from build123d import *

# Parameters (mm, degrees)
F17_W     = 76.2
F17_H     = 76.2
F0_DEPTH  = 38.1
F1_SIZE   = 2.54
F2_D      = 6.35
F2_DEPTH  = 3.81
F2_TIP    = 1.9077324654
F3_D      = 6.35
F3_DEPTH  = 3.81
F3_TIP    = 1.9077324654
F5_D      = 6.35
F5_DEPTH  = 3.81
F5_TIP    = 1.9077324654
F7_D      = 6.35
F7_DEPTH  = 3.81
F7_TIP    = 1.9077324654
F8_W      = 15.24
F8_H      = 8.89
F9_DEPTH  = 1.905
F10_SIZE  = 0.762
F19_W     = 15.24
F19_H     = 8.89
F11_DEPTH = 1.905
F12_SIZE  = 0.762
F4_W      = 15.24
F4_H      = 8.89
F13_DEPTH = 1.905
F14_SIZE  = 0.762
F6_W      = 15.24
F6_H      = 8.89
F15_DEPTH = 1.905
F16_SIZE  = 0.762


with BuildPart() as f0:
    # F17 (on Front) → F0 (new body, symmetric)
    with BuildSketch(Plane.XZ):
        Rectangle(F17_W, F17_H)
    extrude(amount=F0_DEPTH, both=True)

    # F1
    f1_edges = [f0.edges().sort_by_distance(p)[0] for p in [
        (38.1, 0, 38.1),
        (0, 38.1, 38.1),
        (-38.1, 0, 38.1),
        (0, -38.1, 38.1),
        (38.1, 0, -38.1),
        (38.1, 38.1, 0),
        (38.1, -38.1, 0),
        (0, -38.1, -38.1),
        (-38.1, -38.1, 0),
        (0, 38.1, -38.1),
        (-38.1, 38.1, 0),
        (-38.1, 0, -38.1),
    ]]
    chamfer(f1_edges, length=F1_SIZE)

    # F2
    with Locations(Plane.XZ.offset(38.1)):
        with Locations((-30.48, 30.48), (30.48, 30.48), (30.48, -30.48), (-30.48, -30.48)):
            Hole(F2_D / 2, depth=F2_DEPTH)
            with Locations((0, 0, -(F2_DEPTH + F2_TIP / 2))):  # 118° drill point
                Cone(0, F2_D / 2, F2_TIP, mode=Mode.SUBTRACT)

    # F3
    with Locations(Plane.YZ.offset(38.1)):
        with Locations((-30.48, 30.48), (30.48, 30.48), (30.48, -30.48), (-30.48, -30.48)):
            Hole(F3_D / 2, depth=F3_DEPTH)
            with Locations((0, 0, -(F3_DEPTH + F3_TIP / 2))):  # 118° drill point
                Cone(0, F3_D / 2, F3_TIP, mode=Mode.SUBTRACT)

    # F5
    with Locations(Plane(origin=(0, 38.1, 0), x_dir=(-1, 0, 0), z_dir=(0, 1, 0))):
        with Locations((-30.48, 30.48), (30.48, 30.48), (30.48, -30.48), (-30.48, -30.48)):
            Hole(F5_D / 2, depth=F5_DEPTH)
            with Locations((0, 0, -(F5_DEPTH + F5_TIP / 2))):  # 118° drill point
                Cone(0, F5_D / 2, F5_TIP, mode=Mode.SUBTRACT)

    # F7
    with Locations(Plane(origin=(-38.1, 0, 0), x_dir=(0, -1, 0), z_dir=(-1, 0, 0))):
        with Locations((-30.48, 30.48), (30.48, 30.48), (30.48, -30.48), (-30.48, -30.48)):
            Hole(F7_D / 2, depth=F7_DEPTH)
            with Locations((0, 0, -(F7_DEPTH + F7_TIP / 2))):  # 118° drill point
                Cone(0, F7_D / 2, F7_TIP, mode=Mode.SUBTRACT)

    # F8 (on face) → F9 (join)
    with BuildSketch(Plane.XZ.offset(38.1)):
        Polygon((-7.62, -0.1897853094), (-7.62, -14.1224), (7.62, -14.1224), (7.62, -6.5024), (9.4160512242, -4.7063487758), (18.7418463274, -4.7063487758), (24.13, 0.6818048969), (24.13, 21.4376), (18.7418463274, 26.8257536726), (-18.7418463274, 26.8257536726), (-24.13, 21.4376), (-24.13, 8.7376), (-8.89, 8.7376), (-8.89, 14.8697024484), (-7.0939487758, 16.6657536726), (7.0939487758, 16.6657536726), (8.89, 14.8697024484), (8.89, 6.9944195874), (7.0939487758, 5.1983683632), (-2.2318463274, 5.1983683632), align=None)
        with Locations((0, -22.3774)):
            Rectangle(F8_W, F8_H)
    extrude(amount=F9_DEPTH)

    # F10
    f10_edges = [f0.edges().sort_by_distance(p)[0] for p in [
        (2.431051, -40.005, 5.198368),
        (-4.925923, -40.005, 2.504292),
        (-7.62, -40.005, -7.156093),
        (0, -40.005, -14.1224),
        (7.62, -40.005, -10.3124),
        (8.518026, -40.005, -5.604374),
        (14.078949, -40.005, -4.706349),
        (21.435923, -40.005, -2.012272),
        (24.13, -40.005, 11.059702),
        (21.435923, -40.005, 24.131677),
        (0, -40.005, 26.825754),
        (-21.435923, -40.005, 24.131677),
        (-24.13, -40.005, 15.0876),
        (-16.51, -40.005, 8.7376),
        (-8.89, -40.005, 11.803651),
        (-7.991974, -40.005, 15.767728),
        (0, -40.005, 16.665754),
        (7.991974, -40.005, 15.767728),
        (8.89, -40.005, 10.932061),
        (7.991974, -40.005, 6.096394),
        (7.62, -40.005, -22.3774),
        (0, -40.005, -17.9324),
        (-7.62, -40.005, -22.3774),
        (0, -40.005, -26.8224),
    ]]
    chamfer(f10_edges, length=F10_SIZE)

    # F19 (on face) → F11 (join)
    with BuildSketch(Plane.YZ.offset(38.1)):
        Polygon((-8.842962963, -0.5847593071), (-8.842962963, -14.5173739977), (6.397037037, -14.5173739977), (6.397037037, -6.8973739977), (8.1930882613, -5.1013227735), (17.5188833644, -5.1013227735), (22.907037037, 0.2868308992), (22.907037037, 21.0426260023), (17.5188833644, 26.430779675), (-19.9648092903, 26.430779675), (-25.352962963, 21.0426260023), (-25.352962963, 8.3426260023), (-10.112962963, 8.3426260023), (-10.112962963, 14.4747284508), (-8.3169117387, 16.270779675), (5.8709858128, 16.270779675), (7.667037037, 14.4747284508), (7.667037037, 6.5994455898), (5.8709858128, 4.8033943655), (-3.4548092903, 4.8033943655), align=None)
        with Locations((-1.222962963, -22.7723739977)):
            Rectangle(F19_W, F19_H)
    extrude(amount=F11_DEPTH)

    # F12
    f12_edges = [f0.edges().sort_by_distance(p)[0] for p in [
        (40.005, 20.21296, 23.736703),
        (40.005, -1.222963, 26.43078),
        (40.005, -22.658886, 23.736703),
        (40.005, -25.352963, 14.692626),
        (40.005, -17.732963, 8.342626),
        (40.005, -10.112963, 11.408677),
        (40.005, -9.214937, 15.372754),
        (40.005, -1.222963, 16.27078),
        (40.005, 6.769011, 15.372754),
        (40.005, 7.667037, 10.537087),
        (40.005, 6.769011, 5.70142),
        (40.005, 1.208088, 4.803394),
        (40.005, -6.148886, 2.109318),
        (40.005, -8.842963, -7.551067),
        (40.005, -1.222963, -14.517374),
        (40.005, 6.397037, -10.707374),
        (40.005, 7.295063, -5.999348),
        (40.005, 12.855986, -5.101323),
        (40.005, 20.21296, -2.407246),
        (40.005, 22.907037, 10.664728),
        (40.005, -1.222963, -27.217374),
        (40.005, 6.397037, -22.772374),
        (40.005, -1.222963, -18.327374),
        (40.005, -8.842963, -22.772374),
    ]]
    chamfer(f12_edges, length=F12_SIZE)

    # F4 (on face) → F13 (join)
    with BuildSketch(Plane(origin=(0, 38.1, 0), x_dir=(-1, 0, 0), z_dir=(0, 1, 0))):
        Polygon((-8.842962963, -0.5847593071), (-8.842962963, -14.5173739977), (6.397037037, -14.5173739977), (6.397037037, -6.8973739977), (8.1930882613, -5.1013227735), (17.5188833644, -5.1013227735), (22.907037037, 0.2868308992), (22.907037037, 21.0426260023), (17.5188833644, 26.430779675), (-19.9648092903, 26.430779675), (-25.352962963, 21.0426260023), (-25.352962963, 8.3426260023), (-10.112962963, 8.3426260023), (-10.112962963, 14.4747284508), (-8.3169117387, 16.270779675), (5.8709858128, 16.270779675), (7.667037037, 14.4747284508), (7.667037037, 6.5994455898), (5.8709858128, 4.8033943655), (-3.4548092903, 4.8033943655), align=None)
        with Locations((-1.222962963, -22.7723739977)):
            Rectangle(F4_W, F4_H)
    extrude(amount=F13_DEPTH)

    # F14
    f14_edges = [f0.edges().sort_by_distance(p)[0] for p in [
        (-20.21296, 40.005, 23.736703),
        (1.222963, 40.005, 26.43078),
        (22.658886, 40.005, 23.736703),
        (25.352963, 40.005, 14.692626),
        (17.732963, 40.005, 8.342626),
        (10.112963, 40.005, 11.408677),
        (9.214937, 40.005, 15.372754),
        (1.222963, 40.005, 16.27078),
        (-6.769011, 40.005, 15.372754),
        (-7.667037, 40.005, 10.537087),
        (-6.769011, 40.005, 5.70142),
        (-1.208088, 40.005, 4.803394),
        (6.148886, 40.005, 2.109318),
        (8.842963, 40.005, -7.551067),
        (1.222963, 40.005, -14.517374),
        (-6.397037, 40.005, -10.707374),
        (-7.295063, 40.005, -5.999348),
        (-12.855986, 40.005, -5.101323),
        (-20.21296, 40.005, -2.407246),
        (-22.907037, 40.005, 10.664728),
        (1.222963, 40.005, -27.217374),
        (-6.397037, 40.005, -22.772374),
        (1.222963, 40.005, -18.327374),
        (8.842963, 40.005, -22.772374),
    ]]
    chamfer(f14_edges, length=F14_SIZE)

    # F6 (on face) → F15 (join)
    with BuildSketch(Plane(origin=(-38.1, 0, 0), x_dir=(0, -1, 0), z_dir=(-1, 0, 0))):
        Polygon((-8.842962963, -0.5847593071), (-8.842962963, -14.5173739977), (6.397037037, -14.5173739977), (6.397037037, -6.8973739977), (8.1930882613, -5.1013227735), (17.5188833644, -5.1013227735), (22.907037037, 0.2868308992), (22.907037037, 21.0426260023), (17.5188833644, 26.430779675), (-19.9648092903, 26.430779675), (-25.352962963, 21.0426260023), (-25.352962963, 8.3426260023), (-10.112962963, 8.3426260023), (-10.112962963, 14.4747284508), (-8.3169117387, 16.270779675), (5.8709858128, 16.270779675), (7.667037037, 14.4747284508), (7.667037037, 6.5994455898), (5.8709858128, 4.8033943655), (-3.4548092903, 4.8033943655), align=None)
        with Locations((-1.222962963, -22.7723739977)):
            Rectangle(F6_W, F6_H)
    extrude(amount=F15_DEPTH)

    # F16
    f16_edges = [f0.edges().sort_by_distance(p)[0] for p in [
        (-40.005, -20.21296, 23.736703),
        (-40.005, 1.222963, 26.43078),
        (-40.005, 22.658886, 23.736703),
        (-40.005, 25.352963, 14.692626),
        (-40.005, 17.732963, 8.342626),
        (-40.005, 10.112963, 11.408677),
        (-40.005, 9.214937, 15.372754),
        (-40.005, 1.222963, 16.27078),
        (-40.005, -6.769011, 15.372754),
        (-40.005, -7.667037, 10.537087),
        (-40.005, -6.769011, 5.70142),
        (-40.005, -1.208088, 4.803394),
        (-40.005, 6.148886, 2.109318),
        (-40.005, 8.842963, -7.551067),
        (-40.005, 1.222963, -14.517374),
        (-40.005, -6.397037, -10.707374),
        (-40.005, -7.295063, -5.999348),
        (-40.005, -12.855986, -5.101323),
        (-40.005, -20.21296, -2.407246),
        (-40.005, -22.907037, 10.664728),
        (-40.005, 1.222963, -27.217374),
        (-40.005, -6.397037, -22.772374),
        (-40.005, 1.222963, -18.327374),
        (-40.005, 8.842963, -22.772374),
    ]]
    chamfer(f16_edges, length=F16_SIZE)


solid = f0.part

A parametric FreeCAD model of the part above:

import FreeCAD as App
import Part
import Sketcher

V = App.Vector
Q = App.Units.Quantity


def edges_at(feature, points):
    """Names of the edges that pass closest to the given points."""
    edges = feature.Shape.Edges
    near = lambda p: min(range(len(edges)), key=lambda i: edges[i].distToShape(Part.Vertex(*p))[0])
    return sorted({f"Edge{near(p) + 1}" for p in points})


def add_polygon(sketch, points):
    """Adds a closed chain of lines whose ends are joined by coincident constraints."""
    first, n = sketch.GeometryCount, len(points)
    for a, b in zip(points, points[1:] + points[:1]):
        sketch.addGeometry(Part.LineSegment(App.Vector(*a, 0), App.Vector(*b, 0)), False)
    for i in range(n):
        sketch.addConstraint(Sketcher.Constraint("Coincident", first + i, 2, first + (i + 1) % n, 1))

doc = App.newDocument("Part")
params = doc.addObject("Spreadsheet::Sheet", "Params")
for row, (alias, value) in enumerate([
    ("sketch1_width", "3 in"),
    ("pad1_length", "3 in"),
    ("chamfer_size", "0.1 in"),
    ("sketch2_diameter", "0.25 in"),
    ("hole_diameter", "0.25 in"),
    ("hole_depth", "0.15 in"),
    ("sketch3_diameter", "0.25 in"),
    ("hole2_diameter", "0.25 in"),
    ("hole2_depth", "0.15 in"),
    ("sketch4_diameter", "0.25 in"),
    ("hole3_diameter", "0.25 in"),
    ("hole3_depth", "0.15 in"),
    ("sketch5_diameter", "0.25 in"),
    ("hole4_diameter", "0.25 in"),
    ("hole4_depth", "0.15 in"),
    ("sketch6_width", "0.6 in"),
    ("sketch6_height", "0.3 in"),
    ("sketch6_height2", "0.5 in"),
    ("sketch6_length", "0.1 in"),
    ("sketch6_length2", "0.3 in"),
    ("pad2_length", "0.075 in"),
    ("chamfer2_size", "0.03 in"),
    ("sketch7_width", "0.6 in"),
    ("sketch7_height", "0.3 in"),
    ("sketch7_height2", "0.5 in"),
    ("sketch7_length", "0.1 in"),
    ("sketch7_length2", "0.3 in"),
    ("pad3_length", "0.075 in"),
    ("chamfer3_size", "0.03 in"),
    ("sketch8_width", "0.6 in"),
    ("sketch8_height", "0.3 in"),
    ("sketch8_height2", "0.5 in"),
    ("sketch8_length", "0.1 in"),
    ("sketch8_length2", "0.3 in"),
    ("pad4_length", "0.075 in"),
    ("chamfer4_size", "0.03 in"),
    ("sketch9_width", "0.6 in"),
    ("sketch9_height", "0.3 in"),
    ("sketch9_height2", "0.5 in"),
    ("sketch9_length", "0.1 in"),
    ("sketch9_length2", "0.3 in"),
    ("pad5_length", "0.075 in"),
    ("chamfer5_size", "0.03 in"),
], start=1):
    params.set(f"A{row}", alias)
    params.set(f"B{row}", "=" + value)
    params.setAlias(f"B{row}", alias)

body = doc.addObject("PartDesign::Body", "Body")

# Sketch on XZ plane
sketch1 = body.newObject("Sketcher::SketchObject", "Sketch")
sketch1.AttachmentSupport = (doc.getObject("XZ_Plane"), [""])
sketch1.MapMode = "FlatFace"
add_polygon(sketch1, [(-38, 38), (-38, -38), (38, -38), (38, 38)])  # lines 0-3
sketch1.addConstraint([
    Sketcher.Constraint("Vertical", 0),
    Sketcher.Constraint("Horizontal", 1),
    Sketcher.Constraint("Vertical", 2),
    Sketcher.Constraint("Horizontal", 3),
    Sketcher.Constraint("Symmetric", 0, 2, 2, 2, -1, 1),
    Sketcher.Constraint("Equal", 3, 0),
    Sketcher.Constraint("DistanceX", 1, 1, 1, 2, Q("3 in")),
])
sketch1.setExpression("Constraints[10]", "Params.sketch1_width")
pad1 = body.newObject("PartDesign::Pad", "Pad")
pad1.Profile = sketch1
pad1.setExpression("Length", "Params.pad1_length")
pad1.Midplane = True
doc.recompute()

chamfer = body.newObject("PartDesign::Chamfer", "Chamfer")
chamfer.Base = (pad1, ["Edge1"])
chamfer.UseAllEdges = True
chamfer.setExpression("Size", "Params.chamfer_size")

# Sketch on XZ plane
sketch2 = body.newObject("Sketcher::SketchObject", "Sketch001")
sketch2.AttachmentSupport = (doc.getObject("XZ_Plane"), [""])
sketch2.MapMode = "FlatFace"
sketch2.AttachmentOffset = App.Placement(V(0, 0, 1.5 * 25.4), App.Rotation())
sketch2.addGeometry([
    Part.Circle(V(-30.5, 30.5, 0), V(0, 0, 1), 3.2),
    Part.Circle(V(30.5, 30.5, 0), V(0, 0, 1), 3.2),
    Part.Circle(V(30.5, -30.5, 0), V(0, 0, 1), 3.2),
    Part.Circle(V(-30.5, -30.5, 0), V(0, 0, 1), 3.2),
], False)
sketch2.addConstraint([
    Sketcher.Constraint("Equal", 0, 1),
    Sketcher.Constraint("Equal", 1, 2),
    Sketcher.Constraint("Equal", 2, 3),
    Sketcher.Constraint("Symmetric", 0, 3, 2, 3, -1, 1),
    Sketcher.Constraint("Symmetric", 1, 3, 3, 3, -1, 1),
    Sketcher.Constraint("Symmetric", 0, 3, 1, 3, -2),
    Sketcher.Constraint("Diameter", 0, Q("0.25 in")),
    Sketcher.Constraint("DistanceX", 0, 3, -1, 1, Q("1.2 in")),
    Sketcher.Constraint("DistanceY", -1, 1, 0, 3, Q("1.2 in")),
])
sketch2.setExpression("Constraints[6]", "Params.sketch2_diameter")
doc.recompute()
hole = body.newObject("PartDesign::Hole", "Hole")
hole.Profile = sketch2
hole.ThreadType = "None"
hole.setExpression("Diameter", "Params.hole_diameter")
hole.DepthType = "Dimension"
hole.setExpression("Depth", "Params.hole_depth")
hole.DrillPoint = "Angled"
hole.DrillPointAngle = 118

# Sketch on YZ plane
sketch3 = body.newObject("Sketcher::SketchObject", "Sketch002")
sketch3.AttachmentSupport = (doc.getObject("YZ_Plane"), [""])
sketch3.MapMode = "FlatFace"
sketch3.AttachmentOffset = App.Placement(V(0, 0, 1.5 * 25.4), App.Rotation())
sketch3.addGeometry([
    Part.Circle(V(-30.5, 30.5, 0), V(0, 0, 1), 3.2),
    Part.Circle(V(30.5, 30.5, 0), V(0, 0, 1), 3.2),
    Part.Circle(V(30.5, -30.5, 0), V(0, 0, 1), 3.2),
    Part.Circle(V(-30.5, -30.5, 0), V(0, 0, 1), 3.2),
], False)
sketch3.addConstraint([
    Sketcher.Constraint("Equal", 0, 1),
    Sketcher.Constraint("Equal", 1, 2),
    Sketcher.Constraint("Equal", 2, 3),
    Sketcher.Constraint("Symmetric", 0, 3, 2, 3, -1, 1),
    Sketcher.Constraint("Symmetric", 1, 3, 3, 3, -1, 1),
    Sketcher.Constraint("Symmetric", 0, 3, 1, 3, -2),
    Sketcher.Constraint("Diameter", 0, Q("0.25 in")),
    Sketcher.Constraint("DistanceX", 0, 3, -1, 1, Q("1.2 in")),
    Sketcher.Constraint("DistanceY", -1, 1, 0, 3, Q("1.2 in")),
])
sketch3.setExpression("Constraints[6]", "Params.sketch3_diameter")
doc.recompute()
hole2 = body.newObject("PartDesign::Hole", "Hole001")
hole2.Profile = sketch3
hole2.ThreadType = "None"
hole2.setExpression("Diameter", "Params.hole2_diameter")
hole2.DepthType = "Dimension"
hole2.setExpression("Depth", "Params.hole2_depth")
hole2.DrillPoint = "Angled"
hole2.DrillPointAngle = 118

# Sketch on XZ plane
sketch4 = body.newObject("Sketcher::SketchObject", "Sketch003")
sketch4.AttachmentSupport = (doc.getObject("XZ_Plane"), [""])
sketch4.MapMode = "FlatFace"
sketch4.AttachmentOffset = App.Placement(V(0, 0, -1.5 * 25.4), App.Rotation())
sketch4.addGeometry([
    Part.Circle(V(30.5, 30.5, 0), V(0, 0, 1), 3.2),
    Part.Circle(V(-30.5, 30.5, 0), V(0, 0, 1), 3.2),
    Part.Circle(V(-30.5, -30.5, 0), V(0, 0, 1), 3.2),
    Part.Circle(V(30.5, -30.5, 0), V(0, 0, 1), 3.2),
], False)
sketch4.addConstraint([
    Sketcher.Constraint("Equal", 0, 1),
    Sketcher.Constraint("Equal", 1, 2),
    Sketcher.Constraint("Equal", 2, 3),
    Sketcher.Constraint("Symmetric", 0, 3, 2, 3, -1, 1),
    Sketcher.Constraint("Symmetric", 1, 3, 3, 3, -1, 1),
    Sketcher.Constraint("Symmetric", 0, 3, 1, 3, -2),
    Sketcher.Constraint("Diameter", 0, Q("0.25 in")),
    Sketcher.Constraint("DistanceX", -1, 1, 0, 3, Q("1.2 in")),
    Sketcher.Constraint("DistanceY", -1, 1, 0, 3, Q("1.2 in")),
])
sketch4.setExpression("Constraints[6]", "Params.sketch4_diameter")
doc.recompute()
hole3 = body.newObject("PartDesign::Hole", "Hole002")
hole3.Profile = sketch4
hole3.ThreadType = "None"
hole3.setExpression("Diameter", "Params.hole3_diameter")
hole3.DepthType = "Dimension"
hole3.setExpression("Depth", "Params.hole3_depth")
hole3.DrillPoint = "Angled"
hole3.DrillPointAngle = 118
hole3.Reversed = True

# Sketch on YZ plane
sketch5 = body.newObject("Sketcher::SketchObject", "Sketch004")
sketch5.AttachmentSupport = (doc.getObject("YZ_Plane"), [""])
sketch5.MapMode = "FlatFace"
sketch5.AttachmentOffset = App.Placement(V(0, 0, -1.5 * 25.4), App.Rotation())
sketch5.addGeometry([
    Part.Circle(V(30.5, 30.5, 0), V(0, 0, 1), 3.2),
    Part.Circle(V(-30.5, 30.5, 0), V(0, 0, 1), 3.2),
    Part.Circle(V(-30.5, -30.5, 0), V(0, 0, 1), 3.2),
    Part.Circle(V(30.5, -30.5, 0), V(0, 0, 1), 3.2),
], False)
sketch5.addConstraint([
    Sketcher.Constraint("Equal", 0, 1),
    Sketcher.Constraint("Equal", 1, 2),
    Sketcher.Constraint("Equal", 2, 3),
    Sketcher.Constraint("Symmetric", 0, 3, 2, 3, -1, 1),
    Sketcher.Constraint("Symmetric", 1, 3, 3, 3, -1, 1),
    Sketcher.Constraint("Symmetric", 0, 3, 1, 3, -2),
    Sketcher.Constraint("Diameter", 0, Q("0.25 in")),
    Sketcher.Constraint("DistanceX", -1, 1, 0, 3, Q("1.2 in")),
    Sketcher.Constraint("DistanceY", -1, 1, 0, 3, Q("1.2 in")),
])
sketch5.setExpression("Constraints[6]", "Params.sketch5_diameter")
doc.recompute()
hole4 = body.newObject("PartDesign::Hole", "Hole003")
hole4.Profile = sketch5
hole4.ThreadType = "None"
hole4.setExpression("Diameter", "Params.hole4_diameter")
hole4.DepthType = "Dimension"
hole4.setExpression("Depth", "Params.hole4_depth")
hole4.DrillPoint = "Angled"
hole4.DrillPointAngle = 118
hole4.Reversed = True

# Sketch on XZ plane
sketch6 = body.newObject("Sketcher::SketchObject", "Sketch005")
sketch6.AttachmentSupport = (doc.getObject("XZ_Plane"), [""])
sketch6.MapMode = "FlatFace"
sketch6.AttachmentOffset = App.Placement(V(0, 0, 1.5 * 25.4), App.Rotation())
add_polygon(sketch6, [(-7.6, -0.2), (-7.6, -14.1), (7.6, -14.1), (7.6, -6.5), (9.4, -4.7), (18.7, -4.7), (24.1, 0.7), (24.1, 21.4), (18.7, 26.8), (-18.7, 26.8), (-24.1, 21.4), (-24.1, 8.7), (-8.9, 8.7), (-8.9, 14.9), (-7.1, 16.7), (7.1, 16.7), (8.9, 14.9), (8.9, 7), (7.1, 5.2), (-2.2, 5.2)])  # lines 0-19
add_polygon(sketch6, [(-7.6, -17.9), (-7.6, -26.8), (7.6, -26.8), (7.6, -17.9)])  # lines 20-23
sketch6.addConstraint([
    Sketcher.Constraint("Vertical", 0),
    Sketcher.Constraint("Horizontal", 1),
    Sketcher.Constraint("Vertical", 2),
    Sketcher.Constraint("Horizontal", 4),
    Sketcher.Constraint("Vertical", 6),
    Sketcher.Constraint("Horizontal", 8),
    Sketcher.Constraint("Vertical", 10),
    Sketcher.Constraint("Horizontal", 11),
    Sketcher.Constraint("Vertical", 12),
    Sketcher.Constraint("Horizontal", 14),
    Sketcher.Constraint("Vertical", 16),
    Sketcher.Constraint("Horizontal", 18),
    Sketcher.Constraint("Vertical", 20),
    Sketcher.Constraint("Horizontal", 21),
    Sketcher.Constraint("Vertical", 22),
    Sketcher.Constraint("Horizontal", 23),
    Sketcher.Constraint("Symmetric", 6, 2, 9, 2, -2),
    Sketcher.Constraint("Symmetric", 12, 2, 15, 2, -2),
    Sketcher.Constraint("Parallel", 3, 5),
    Sketcher.Constraint("Perpendicular", 5, 7),
    Sketcher.Constraint("Perpendicular", 7, 9),
    Sketcher.Constraint("Parallel", 9, 13),
    Sketcher.Constraint("Perpendicular", 13, 15),
    Sketcher.Constraint("Perpendicular", 15, 17),
    Sketcher.Constraint("Parallel", 17, 19),
    Sketcher.Constraint("Vertical", 4, 2, 7, 2),
    Sketcher.Constraint("Vertical", 14, 2, 17, 2),
    Sketcher.Constraint("Vertical", 19, 2, 20, 2),
    Sketcher.Constraint("Vertical", 2, 2, 21, 2),
    Sketcher.Constraint("Equal", 1, 11),
    Sketcher.Constraint("Equal", 4, 18),
    Sketcher.Constraint("Equal", 5, 7),
    Sketcher.Constraint("Equal", 3, 13),
    Sketcher.Constraint("DistanceX", 1, 1, 1, 2, Q("0.6 in")),
    Sketcher.Constraint("DistanceY", 2, 1, 2, 2, Q("0.3 in")),
    Sketcher.Constraint("DistanceY", 10, 2, 10, 1, Q("0.5 in")),
    Sketcher.Constraint("Distance", 3, Q("0.1 in")),
    Sketcher.Constraint("Distance", 5, Q("0.3 in")),
    Sketcher.Constraint("DistanceY", 20, 2, 20, 1, Q("0.35 in")),
    Sketcher.Constraint("DistanceX", 0, 2, -1, 1, Q("0.3 in")),
    Sketcher.Constraint("DistanceY", 2, 2, 6, 2, Q("1.1 in")),
    Sketcher.Constraint("DistanceY", 13, 2, 8, 2, Q("0.4 in")),
    Sketcher.Constraint("DistanceX", 12, 2, 15, 2, Q("0.7 in")),
    Sketcher.Constraint("DistanceY", 20, 2, 0, 2, Q("0.5 in")),
    Sketcher.Constraint("DistanceY", 0, 2, -1, 1, Q("0.556 in")),
    Sketcher.Constraint("DistanceY", 0, 2, 0, 1, Q("13.932615 mm")),
])
sketch6.setExpression("Constraints[57]", "Params.sketch6_width")
sketch6.setExpression("Constraints[58]", "Params.sketch6_height")
sketch6.setExpression("Constraints[59]", "Params.sketch6_height2")
sketch6.setExpression("Constraints[60]", "Params.sketch6_length")
sketch6.setExpression("Constraints[61]", "Params.sketch6_length2")
pad2 = body.newObject("PartDesign::Pad", "Pad001")
pad2.Profile = sketch6
pad2.setExpression("Length", "Params.pad2_length")
doc.recompute()

chamfer2 = body.newObject("PartDesign::Chamfer", "Chamfer001")
chamfer2.Base = (pad2, edges_at(pad2, [
    (2.431, -40.005, 5.198),
    (-4.926, -40.005, 2.504),
    (-7.62, -40.005, -7.156),
    (0, -40.005, -14.122),
    (7.62, -40.005, -10.312),
    (8.518, -40.005, -5.604),
    (14.079, -40.005, -4.706),
    (21.436, -40.005, -2.012),
    (24.13, -40.005, 11.06),
    (21.436, -40.005, 24.132),
    (0, -40.005, 26.826),
    (-21.436, -40.005, 24.132),
    (-24.13, -40.005, 15.088),
    (-16.51, -40.005, 8.738),
    (-8.89, -40.005, 11.804),
    (-7.992, -40.005, 15.768),
    (0, -40.005, 16.666),
    (7.992, -40.005, 15.768),
    (8.89, -40.005, 10.932),
    (7.992, -40.005, 6.096),
    (7.62, -40.005, -22.377),
    (0, -40.005, -17.932),
    (-7.62, -40.005, -22.377),
    (0, -40.005, -26.822),
]))
chamfer2.setExpression("Size", "Params.chamfer2_size")

# Sketch on YZ plane
sketch7 = body.newObject("Sketcher::SketchObject", "Sketch006")
sketch7.AttachmentSupport = (doc.getObject("YZ_Plane"), [""])
sketch7.MapMode = "FlatFace"
sketch7.AttachmentOffset = App.Placement(V(0, 0, 1.5 * 25.4), App.Rotation())
add_polygon(sketch7, [(-8.8, -0.6), (-8.8, -14.5), (6.4, -14.5), (6.4, -6.9), (8.2, -5.1), (17.5, -5.1), (22.9, 0.3), (22.9, 21), (17.5, 26.4), (-20, 26.4), (-25.4, 21), (-25.4, 8.3), (-10.1, 8.3), (-10.1, 14.5), (-8.3, 16.3), (5.9, 16.3), (7.7, 14.5), (7.7, 6.6), (5.9, 4.8), (-3.5, 4.8)])  # lines 0-19
add_polygon(sketch7, [(-8.8, -18.3), (-8.8, -27.2), (6.4, -27.2), (6.4, -18.3)])  # lines 20-23
sketch7.addConstraint([
    Sketcher.Constraint("Vertical", 0),
    Sketcher.Constraint("Horizontal", 1),
    Sketcher.Constraint("Vertical", 2),
    Sketcher.Constraint("Horizontal", 4),
    Sketcher.Constraint("Vertical", 6),
    Sketcher.Constraint("Horizontal", 8),
    Sketcher.Constraint("Vertical", 10),
    Sketcher.Constraint("Horizontal", 11),
    Sketcher.Constraint("Vertical", 12),
    Sketcher.Constraint("Horizontal", 14),
    Sketcher.Constraint("Vertical", 16),
    Sketcher.Constraint("Horizontal", 18),
    Sketcher.Constraint("Vertical", 20),
    Sketcher.Constraint("Horizontal", 21),
    Sketcher.Constraint("Vertical", 22),
    Sketcher.Constraint("Horizontal", 23),
    Sketcher.Constraint("Parallel", 3, 5),
    Sketcher.Constraint("Perpendicular", 5, 7),
    Sketcher.Constraint("Perpendicular", 7, 9),
    Sketcher.Constraint("Parallel", 9, 13),
    Sketcher.Constraint("Perpendicular", 13, 15),
    Sketcher.Constraint("Perpendicular", 15, 17),
    Sketcher.Constraint("Parallel", 17, 19),
    Sketcher.Constraint("Horizontal", 6, 2, 9, 2),
    Sketcher.Constraint("Horizontal", 12, 2, 15, 2),
    Sketcher.Constraint("Vertical", 4, 2, 7, 2),
    Sketcher.Constraint("Vertical", 14, 2, 17, 2),
    Sketcher.Constraint("Vertical", 19, 2, 20, 2),
    Sketcher.Constraint("Vertical", 2, 2, 21, 2),
    Sketcher.Constraint("Equal", 1, 11),
    Sketcher.Constraint("Equal", 4, 18),
    Sketcher.Constraint("Equal", 5, 7),
    Sketcher.Constraint("Equal", 3, 13),
    Sketcher.Constraint("Equal", 9, 19),
    Sketcher.Constraint("DistanceX", 1, 1, 1, 2, Q("0.6 in")),
    Sketcher.Constraint("DistanceY", 2, 1, 2, 2, Q("0.3 in")),
    Sketcher.Constraint("DistanceY", 10, 2, 10, 1, Q("0.5 in")),
    Sketcher.Constraint("Distance", 3, Q("0.1 in")),
    Sketcher.Constraint("Distance", 5, Q("0.3 in")),
    Sketcher.Constraint("DistanceY", 20, 2, 20, 1, Q("0.35 in")),
    Sketcher.Constraint("DistanceY", 2, 2, 6, 2, Q("1.1 in")),
    Sketcher.Constraint("DistanceY", 13, 2, 8, 2, Q("0.4 in")),
    Sketcher.Constraint("DistanceX", 12, 2, 15, 2, Q("0.7 in")),
    Sketcher.Constraint("DistanceY", 20, 2, 0, 2, Q("0.5 in")),
    Sketcher.Constraint("DistanceX", 2, 2, 5, 2, Q("0.65 in")),
    Sketcher.Constraint("DistanceY", 0, 2, 0, 1, Q("13.932615 mm")),
    Sketcher.Constraint("DistanceX", -1, 1, 3, 2, Q("8.193088 mm")),
    Sketcher.Constraint("DistanceY", -1, 1, 5, 2, Q("0.286831 mm")),
])
sketch7.setExpression("Constraints[58]", "Params.sketch7_width")
sketch7.setExpression("Constraints[59]", "Params.sketch7_height")
sketch7.setExpression("Constraints[60]", "Params.sketch7_height2")
sketch7.setExpression("Constraints[61]", "Params.sketch7_length")
sketch7.setExpression("Constraints[62]", "Params.sketch7_length2")
pad3 = body.newObject("PartDesign::Pad", "Pad002")
pad3.Profile = sketch7
pad3.setExpression("Length", "Params.pad3_length")
doc.recompute()

chamfer3 = body.newObject("PartDesign::Chamfer", "Chamfer002")
chamfer3.Base = (pad3, edges_at(pad3, [
    (40.005, 20.213, 23.737),
    (40.005, -1.223, 26.431),
    (40.005, -22.659, 23.737),
    (40.005, -25.353, 14.693),
    (40.005, -17.733, 8.343),
    (40.005, -10.113, 11.409),
    (40.005, -9.215, 15.373),
    (40.005, -1.223, 16.271),
    (40.005, 6.769, 15.373),
    (40.005, 7.667, 10.537),
    (40.005, 6.769, 5.701),
    (40.005, 1.208, 4.803),
    (40.005, -6.149, 2.109),
    (40.005, -8.843, -7.551),
    (40.005, -1.223, -14.517),
    (40.005, 6.397, -10.707),
    (40.005, 7.295, -5.999),
    (40.005, 12.856, -5.101),
    (40.005, 20.213, -2.407),
    (40.005, 22.907, 10.665),
    (40.005, -1.223, -27.217),
    (40.005, 6.397, -22.772),
    (40.005, -1.223, -18.327),
    (40.005, -8.843, -22.772),
]))
chamfer3.setExpression("Size", "Params.chamfer3_size")

# Sketch on XZ plane
sketch8 = body.newObject("Sketcher::SketchObject", "Sketch007")
sketch8.AttachmentSupport = (doc.getObject("XZ_Plane"), [""])
sketch8.MapMode = "FlatFace"
sketch8.AttachmentOffset = App.Placement(V(0, 0, -1.5 * 25.4), App.Rotation())
add_polygon(sketch8, [(8.8, -0.6), (8.8, -14.5), (-6.4, -14.5), (-6.4, -6.9), (-8.2, -5.1), (-17.5, -5.1), (-22.9, 0.3), (-22.9, 21), (-17.5, 26.4), (20, 26.4), (25.4, 21), (25.4, 8.3), (10.1, 8.3), (10.1, 14.5), (8.3, 16.3), (-5.9, 16.3), (-7.7, 14.5), (-7.7, 6.6), (-5.9, 4.8), (3.5, 4.8)])  # lines 0-19
add_polygon(sketch8, [(8.8, -18.3), (8.8, -27.2), (-6.4, -27.2), (-6.4, -18.3)])  # lines 20-23
sketch8.addConstraint([
    Sketcher.Constraint("Vertical", 0),
    Sketcher.Constraint("Horizontal", 1),
    Sketcher.Constraint("Vertical", 2),
    Sketcher.Constraint("Horizontal", 4),
    Sketcher.Constraint("Vertical", 6),
    Sketcher.Constraint("Horizontal", 8),
    Sketcher.Constraint("Vertical", 10),
    Sketcher.Constraint("Horizontal", 11),
    Sketcher.Constraint("Vertical", 12),
    Sketcher.Constraint("Horizontal", 14),
    Sketcher.Constraint("Vertical", 16),
    Sketcher.Constraint("Horizontal", 18),
    Sketcher.Constraint("Vertical", 20),
    Sketcher.Constraint("Horizontal", 21),
    Sketcher.Constraint("Vertical", 22),
    Sketcher.Constraint("Horizontal", 23),
    Sketcher.Constraint("Parallel", 3, 5),
    Sketcher.Constraint("Perpendicular", 5, 7),
    Sketcher.Constraint("Perpendicular", 7, 9),
    Sketcher.Constraint("Parallel", 9, 13),
    Sketcher.Constraint("Perpendicular", 13, 15),
    Sketcher.Constraint("Perpendicular", 15, 17),
    Sketcher.Constraint("Parallel", 17, 19),
    Sketcher.Constraint("Horizontal", 6, 2, 9, 2),
    Sketcher.Constraint("Horizontal", 12, 2, 15, 2),
    Sketcher.Constraint("Vertical", 4, 2, 7, 2),
    Sketcher.Constraint("Vertical", 14, 2, 17, 2),
    Sketcher.Constraint("Vertical", 19, 2, 20, 2),
    Sketcher.Constraint("Vertical", 2, 2, 21, 2),
    Sketcher.Constraint("Equal", 1, 11),
    Sketcher.Constraint("Equal", 4, 18),
    Sketcher.Constraint("Equal", 5, 7),
    Sketcher.Constraint("Equal", 3, 13),
    Sketcher.Constraint("Equal", 9, 19),
    Sketcher.Constraint("DistanceX", 1, 2, 1, 1, Q("0.6 in")),
    Sketcher.Constraint("DistanceY", 2, 1, 2, 2, Q("0.3 in")),
    Sketcher.Constraint("DistanceY", 10, 2, 10, 1, Q("0.5 in")),
    Sketcher.Constraint("Distance", 3, Q("0.1 in")),
    Sketcher.Constraint("Distance", 5, Q("0.3 in")),
    Sketcher.Constraint("DistanceY", 20, 2, 20, 1, Q("0.35 in")),
    Sketcher.Constraint("DistanceY", 2, 2, 6, 2, Q("1.1 in")),
    Sketcher.Constraint("DistanceY", 13, 2, 8, 2, Q("0.4 in")),
    Sketcher.Constraint("DistanceX", 15, 2, 12, 2, Q("0.7 in")),
    Sketcher.Constraint("DistanceY", 20, 2, 0, 2, Q("0.5 in")),
    Sketcher.Constraint("DistanceX", 5, 2, 2, 2, Q("0.65 in")),
    Sketcher.Constraint("DistanceY", 0, 2, 0, 1, Q("13.932615 mm")),
    Sketcher.Constraint("DistanceX", 3, 2, -1, 1, Q("8.193088 mm")),
    Sketcher.Constraint("DistanceY", -1, 1, 5, 2, Q("0.286831 mm")),
])
sketch8.setExpression("Constraints[58]", "Params.sketch8_width")
sketch8.setExpression("Constraints[59]", "Params.sketch8_height")
sketch8.setExpression("Constraints[60]", "Params.sketch8_height2")
sketch8.setExpression("Constraints[61]", "Params.sketch8_length")
sketch8.setExpression("Constraints[62]", "Params.sketch8_length2")
pad4 = body.newObject("PartDesign::Pad", "Pad003")
pad4.Profile = sketch8
pad4.setExpression("Length", "Params.pad4_length")
pad4.Reversed = True
doc.recompute()

chamfer4 = body.newObject("PartDesign::Chamfer", "Chamfer003")
chamfer4.Base = (pad4, edges_at(pad4, [
    (-20.213, 40.005, 23.737),
    (1.223, 40.005, 26.431),
    (22.659, 40.005, 23.737),
    (25.353, 40.005, 14.693),
    (17.733, 40.005, 8.343),
    (10.113, 40.005, 11.409),
    (9.215, 40.005, 15.373),
    (1.223, 40.005, 16.271),
    (-6.769, 40.005, 15.373),
    (-7.667, 40.005, 10.537),
    (-6.769, 40.005, 5.701),
    (-1.208, 40.005, 4.803),
    (6.149, 40.005, 2.109),
    (8.843, 40.005, -7.551),
    (1.223, 40.005, -14.517),
    (-6.397, 40.005, -10.707),
    (-7.295, 40.005, -5.999),
    (-12.856, 40.005, -5.101),
    (-20.213, 40.005, -2.407),
    (-22.907, 40.005, 10.665),
    (1.223, 40.005, -27.217),
    (-6.397, 40.005, -22.772),
    (1.223, 40.005, -18.327),
    (8.843, 40.005, -22.772),
]))
chamfer4.setExpression("Size", "Params.chamfer4_size")

# Sketch on YZ plane
sketch9 = body.newObject("Sketcher::SketchObject", "Sketch008")
sketch9.AttachmentSupport = (doc.getObject("YZ_Plane"), [""])
sketch9.MapMode = "FlatFace"
sketch9.AttachmentOffset = App.Placement(V(0, 0, -1.5 * 25.4), App.Rotation())
add_polygon(sketch9, [(8.8, -0.6), (8.8, -14.5), (-6.4, -14.5), (-6.4, -6.9), (-8.2, -5.1), (-17.5, -5.1), (-22.9, 0.3), (-22.9, 21), (-17.5, 26.4), (20, 26.4), (25.4, 21), (25.4, 8.3), (10.1, 8.3), (10.1, 14.5), (8.3, 16.3), (-5.9, 16.3), (-7.7, 14.5), (-7.7, 6.6), (-5.9, 4.8), (3.5, 4.8)])  # lines 0-19
add_polygon(sketch9, [(8.8, -18.3), (8.8, -27.2), (-6.4, -27.2), (-6.4, -18.3)])  # lines 20-23
sketch9.addConstraint([
    Sketcher.Constraint("Vertical", 0),
    Sketcher.Constraint("Horizontal", 1),
    Sketcher.Constraint("Vertical", 2),
    Sketcher.Constraint("Horizontal", 4),
    Sketcher.Constraint("Vertical", 6),
    Sketcher.Constraint("Horizontal", 8),
    Sketcher.Constraint("Vertical", 10),
    Sketcher.Constraint("Horizontal", 11),
    Sketcher.Constraint("Vertical", 12),
    Sketcher.Constraint("Horizontal", 14),
    Sketcher.Constraint("Vertical", 16),
    Sketcher.Constraint("Horizontal", 18),
    Sketcher.Constraint("Vertical", 20),
    Sketcher.Constraint("Horizontal", 21),
    Sketcher.Constraint("Vertical", 22),
    Sketcher.Constraint("Horizontal", 23),
    Sketcher.Constraint("Parallel", 3, 5),
    Sketcher.Constraint("Perpendicular", 5, 7),
    Sketcher.Constraint("Perpendicular", 7, 9),
    Sketcher.Constraint("Parallel", 9, 13),
    Sketcher.Constraint("Perpendicular", 13, 15),
    Sketcher.Constraint("Perpendicular", 15, 17),
    Sketcher.Constraint("Parallel", 17, 19),
    Sketcher.Constraint("Horizontal", 6, 2, 9, 2),
    Sketcher.Constraint("Horizontal", 12, 2, 15, 2),
    Sketcher.Constraint("Vertical", 4, 2, 7, 2),
    Sketcher.Constraint("Vertical", 14, 2, 17, 2),
    Sketcher.Constraint("Vertical", 19, 2, 20, 2),
    Sketcher.Constraint("Vertical", 2, 2, 21, 2),
    Sketcher.Constraint("Equal", 1, 11),
    Sketcher.Constraint("Equal", 4, 18),
    Sketcher.Constraint("Equal", 5, 7),
    Sketcher.Constraint("Equal", 3, 13),
    Sketcher.Constraint("Equal", 9, 19),
    Sketcher.Constraint("DistanceX", 1, 2, 1, 1, Q("0.6 in")),
    Sketcher.Constraint("DistanceY", 2, 1, 2, 2, Q("0.3 in")),
    Sketcher.Constraint("DistanceY", 10, 2, 10, 1, Q("0.5 in")),
    Sketcher.Constraint("Distance", 3, Q("0.1 in")),
    Sketcher.Constraint("Distance", 5, Q("0.3 in")),
    Sketcher.Constraint("DistanceY", 20, 2, 20, 1, Q("0.35 in")),
    Sketcher.Constraint("DistanceY", 2, 2, 6, 2, Q("1.1 in")),
    Sketcher.Constraint("DistanceY", 13, 2, 8, 2, Q("0.4 in")),
    Sketcher.Constraint("DistanceX", 15, 2, 12, 2, Q("0.7 in")),
    Sketcher.Constraint("DistanceY", 20, 2, 0, 2, Q("0.5 in")),
    Sketcher.Constraint("DistanceX", 5, 2, 2, 2, Q("0.65 in")),
    Sketcher.Constraint("DistanceY", 0, 2, 0, 1, Q("13.932615 mm")),
    Sketcher.Constraint("DistanceX", 3, 2, -1, 1, Q("8.193088 mm")),
    Sketcher.Constraint("DistanceY", -1, 1, 5, 2, Q("0.286831 mm")),
])
sketch9.setExpression("Constraints[58]", "Params.sketch9_width")
sketch9.setExpression("Constraints[59]", "Params.sketch9_height")
sketch9.setExpression("Constraints[60]", "Params.sketch9_height2")
sketch9.setExpression("Constraints[61]", "Params.sketch9_length")
sketch9.setExpression("Constraints[62]", "Params.sketch9_length2")
pad5 = body.newObject("PartDesign::Pad", "Pad004")
pad5.Profile = sketch9
pad5.setExpression("Length", "Params.pad5_length")
pad5.Reversed = True
doc.recompute()

chamfer5 = body.newObject("PartDesign::Chamfer", "Chamfer004")
chamfer5.Base = (pad5, edges_at(pad5, [
    (-40.005, -20.213, 23.737),
    (-40.005, 1.223, 26.431),
    (-40.005, 22.659, 23.737),
    (-40.005, 25.353, 14.693),
    (-40.005, 17.733, 8.343),
    (-40.005, 10.113, 11.409),
    (-40.005, 9.215, 15.373),
    (-40.005, 1.223, 16.271),
    (-40.005, -6.769, 15.373),
    (-40.005, -7.667, 10.537),
    (-40.005, -6.769, 5.701),
    (-40.005, -1.208, 4.803),
    (-40.005, 6.149, 2.109),
    (-40.005, 8.843, -7.551),
    (-40.005, 1.223, -14.517),
    (-40.005, -6.397, -10.707),
    (-40.005, -7.295, -5.999),
    (-40.005, -12.856, -5.101),
    (-40.005, -20.213, -2.407),
    (-40.005, -22.907, 10.665),
    (-40.005, 1.223, -27.217),
    (-40.005, -6.397, -22.772),
    (-40.005, 1.223, -18.327),
    (-40.005, 8.843, -22.772),
]))
chamfer5.setExpression("Size", "Params.chamfer5_size")

doc.recompute()
